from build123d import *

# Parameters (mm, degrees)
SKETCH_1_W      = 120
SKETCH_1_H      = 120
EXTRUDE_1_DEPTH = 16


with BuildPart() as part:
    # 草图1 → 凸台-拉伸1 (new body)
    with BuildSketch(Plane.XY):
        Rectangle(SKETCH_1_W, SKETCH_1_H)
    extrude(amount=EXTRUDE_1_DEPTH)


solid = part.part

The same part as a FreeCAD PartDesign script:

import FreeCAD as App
import Part
import Sketcher
from FreeCAD import Vector
Q = App.Units.Quantity


def add_polygon(sketch, points):
    """Adds a closed chain of lines whose ends are joined by coincident constraints."""
    first, n = sketch.GeometryCount, len(points)
    for a, b in zip(points, points[1:] + points[:1]):
        sketch.addGeometry(Part.LineSegment(App.Vector(*a, 0), App.Vector(*b, 0)), False)
    for i in range(n):
        sketch.addConstraint(Sketcher.Constraint("Coincident", first + i, 2, first + (i + 1) % n, 1))

doc = App.newDocument("Part")
body = doc.addObject("PartDesign::Body", "Body")

sketch1 = body.newObject("Sketcher::SketchObject", "Sketch")
sketch1.AttachmentSupport = (doc.getObject("XY_Plane"), [""])
sketch1.MapMode = "FlatFace"
add_polygon(sketch1, [(-60, 60), (-60, -60), (60, -60), (60, 60)])
sketch1.addConstraint([
    Sketcher.Constraint("Vertical", 0),
    Sketcher.Constraint("Horizontal", 1),
    Sketcher.Constraint("Vertical", 2),
    Sketcher.Constraint("Horizontal", 3),
    Sketcher.Constraint("Symmetric", 0, 2, 2, 2, -1, 1),
    Sketcher.Constraint("Equal", 3, 0),
    Sketcher.Constraint("DistanceX", 1, 1, 1, 2, Q("120 mm")),
])
pad1 = body.newObject("PartDesign::Pad", "Pad")
pad1.Profile = sketch1
pad1.Length = 16

doc.recompute()
